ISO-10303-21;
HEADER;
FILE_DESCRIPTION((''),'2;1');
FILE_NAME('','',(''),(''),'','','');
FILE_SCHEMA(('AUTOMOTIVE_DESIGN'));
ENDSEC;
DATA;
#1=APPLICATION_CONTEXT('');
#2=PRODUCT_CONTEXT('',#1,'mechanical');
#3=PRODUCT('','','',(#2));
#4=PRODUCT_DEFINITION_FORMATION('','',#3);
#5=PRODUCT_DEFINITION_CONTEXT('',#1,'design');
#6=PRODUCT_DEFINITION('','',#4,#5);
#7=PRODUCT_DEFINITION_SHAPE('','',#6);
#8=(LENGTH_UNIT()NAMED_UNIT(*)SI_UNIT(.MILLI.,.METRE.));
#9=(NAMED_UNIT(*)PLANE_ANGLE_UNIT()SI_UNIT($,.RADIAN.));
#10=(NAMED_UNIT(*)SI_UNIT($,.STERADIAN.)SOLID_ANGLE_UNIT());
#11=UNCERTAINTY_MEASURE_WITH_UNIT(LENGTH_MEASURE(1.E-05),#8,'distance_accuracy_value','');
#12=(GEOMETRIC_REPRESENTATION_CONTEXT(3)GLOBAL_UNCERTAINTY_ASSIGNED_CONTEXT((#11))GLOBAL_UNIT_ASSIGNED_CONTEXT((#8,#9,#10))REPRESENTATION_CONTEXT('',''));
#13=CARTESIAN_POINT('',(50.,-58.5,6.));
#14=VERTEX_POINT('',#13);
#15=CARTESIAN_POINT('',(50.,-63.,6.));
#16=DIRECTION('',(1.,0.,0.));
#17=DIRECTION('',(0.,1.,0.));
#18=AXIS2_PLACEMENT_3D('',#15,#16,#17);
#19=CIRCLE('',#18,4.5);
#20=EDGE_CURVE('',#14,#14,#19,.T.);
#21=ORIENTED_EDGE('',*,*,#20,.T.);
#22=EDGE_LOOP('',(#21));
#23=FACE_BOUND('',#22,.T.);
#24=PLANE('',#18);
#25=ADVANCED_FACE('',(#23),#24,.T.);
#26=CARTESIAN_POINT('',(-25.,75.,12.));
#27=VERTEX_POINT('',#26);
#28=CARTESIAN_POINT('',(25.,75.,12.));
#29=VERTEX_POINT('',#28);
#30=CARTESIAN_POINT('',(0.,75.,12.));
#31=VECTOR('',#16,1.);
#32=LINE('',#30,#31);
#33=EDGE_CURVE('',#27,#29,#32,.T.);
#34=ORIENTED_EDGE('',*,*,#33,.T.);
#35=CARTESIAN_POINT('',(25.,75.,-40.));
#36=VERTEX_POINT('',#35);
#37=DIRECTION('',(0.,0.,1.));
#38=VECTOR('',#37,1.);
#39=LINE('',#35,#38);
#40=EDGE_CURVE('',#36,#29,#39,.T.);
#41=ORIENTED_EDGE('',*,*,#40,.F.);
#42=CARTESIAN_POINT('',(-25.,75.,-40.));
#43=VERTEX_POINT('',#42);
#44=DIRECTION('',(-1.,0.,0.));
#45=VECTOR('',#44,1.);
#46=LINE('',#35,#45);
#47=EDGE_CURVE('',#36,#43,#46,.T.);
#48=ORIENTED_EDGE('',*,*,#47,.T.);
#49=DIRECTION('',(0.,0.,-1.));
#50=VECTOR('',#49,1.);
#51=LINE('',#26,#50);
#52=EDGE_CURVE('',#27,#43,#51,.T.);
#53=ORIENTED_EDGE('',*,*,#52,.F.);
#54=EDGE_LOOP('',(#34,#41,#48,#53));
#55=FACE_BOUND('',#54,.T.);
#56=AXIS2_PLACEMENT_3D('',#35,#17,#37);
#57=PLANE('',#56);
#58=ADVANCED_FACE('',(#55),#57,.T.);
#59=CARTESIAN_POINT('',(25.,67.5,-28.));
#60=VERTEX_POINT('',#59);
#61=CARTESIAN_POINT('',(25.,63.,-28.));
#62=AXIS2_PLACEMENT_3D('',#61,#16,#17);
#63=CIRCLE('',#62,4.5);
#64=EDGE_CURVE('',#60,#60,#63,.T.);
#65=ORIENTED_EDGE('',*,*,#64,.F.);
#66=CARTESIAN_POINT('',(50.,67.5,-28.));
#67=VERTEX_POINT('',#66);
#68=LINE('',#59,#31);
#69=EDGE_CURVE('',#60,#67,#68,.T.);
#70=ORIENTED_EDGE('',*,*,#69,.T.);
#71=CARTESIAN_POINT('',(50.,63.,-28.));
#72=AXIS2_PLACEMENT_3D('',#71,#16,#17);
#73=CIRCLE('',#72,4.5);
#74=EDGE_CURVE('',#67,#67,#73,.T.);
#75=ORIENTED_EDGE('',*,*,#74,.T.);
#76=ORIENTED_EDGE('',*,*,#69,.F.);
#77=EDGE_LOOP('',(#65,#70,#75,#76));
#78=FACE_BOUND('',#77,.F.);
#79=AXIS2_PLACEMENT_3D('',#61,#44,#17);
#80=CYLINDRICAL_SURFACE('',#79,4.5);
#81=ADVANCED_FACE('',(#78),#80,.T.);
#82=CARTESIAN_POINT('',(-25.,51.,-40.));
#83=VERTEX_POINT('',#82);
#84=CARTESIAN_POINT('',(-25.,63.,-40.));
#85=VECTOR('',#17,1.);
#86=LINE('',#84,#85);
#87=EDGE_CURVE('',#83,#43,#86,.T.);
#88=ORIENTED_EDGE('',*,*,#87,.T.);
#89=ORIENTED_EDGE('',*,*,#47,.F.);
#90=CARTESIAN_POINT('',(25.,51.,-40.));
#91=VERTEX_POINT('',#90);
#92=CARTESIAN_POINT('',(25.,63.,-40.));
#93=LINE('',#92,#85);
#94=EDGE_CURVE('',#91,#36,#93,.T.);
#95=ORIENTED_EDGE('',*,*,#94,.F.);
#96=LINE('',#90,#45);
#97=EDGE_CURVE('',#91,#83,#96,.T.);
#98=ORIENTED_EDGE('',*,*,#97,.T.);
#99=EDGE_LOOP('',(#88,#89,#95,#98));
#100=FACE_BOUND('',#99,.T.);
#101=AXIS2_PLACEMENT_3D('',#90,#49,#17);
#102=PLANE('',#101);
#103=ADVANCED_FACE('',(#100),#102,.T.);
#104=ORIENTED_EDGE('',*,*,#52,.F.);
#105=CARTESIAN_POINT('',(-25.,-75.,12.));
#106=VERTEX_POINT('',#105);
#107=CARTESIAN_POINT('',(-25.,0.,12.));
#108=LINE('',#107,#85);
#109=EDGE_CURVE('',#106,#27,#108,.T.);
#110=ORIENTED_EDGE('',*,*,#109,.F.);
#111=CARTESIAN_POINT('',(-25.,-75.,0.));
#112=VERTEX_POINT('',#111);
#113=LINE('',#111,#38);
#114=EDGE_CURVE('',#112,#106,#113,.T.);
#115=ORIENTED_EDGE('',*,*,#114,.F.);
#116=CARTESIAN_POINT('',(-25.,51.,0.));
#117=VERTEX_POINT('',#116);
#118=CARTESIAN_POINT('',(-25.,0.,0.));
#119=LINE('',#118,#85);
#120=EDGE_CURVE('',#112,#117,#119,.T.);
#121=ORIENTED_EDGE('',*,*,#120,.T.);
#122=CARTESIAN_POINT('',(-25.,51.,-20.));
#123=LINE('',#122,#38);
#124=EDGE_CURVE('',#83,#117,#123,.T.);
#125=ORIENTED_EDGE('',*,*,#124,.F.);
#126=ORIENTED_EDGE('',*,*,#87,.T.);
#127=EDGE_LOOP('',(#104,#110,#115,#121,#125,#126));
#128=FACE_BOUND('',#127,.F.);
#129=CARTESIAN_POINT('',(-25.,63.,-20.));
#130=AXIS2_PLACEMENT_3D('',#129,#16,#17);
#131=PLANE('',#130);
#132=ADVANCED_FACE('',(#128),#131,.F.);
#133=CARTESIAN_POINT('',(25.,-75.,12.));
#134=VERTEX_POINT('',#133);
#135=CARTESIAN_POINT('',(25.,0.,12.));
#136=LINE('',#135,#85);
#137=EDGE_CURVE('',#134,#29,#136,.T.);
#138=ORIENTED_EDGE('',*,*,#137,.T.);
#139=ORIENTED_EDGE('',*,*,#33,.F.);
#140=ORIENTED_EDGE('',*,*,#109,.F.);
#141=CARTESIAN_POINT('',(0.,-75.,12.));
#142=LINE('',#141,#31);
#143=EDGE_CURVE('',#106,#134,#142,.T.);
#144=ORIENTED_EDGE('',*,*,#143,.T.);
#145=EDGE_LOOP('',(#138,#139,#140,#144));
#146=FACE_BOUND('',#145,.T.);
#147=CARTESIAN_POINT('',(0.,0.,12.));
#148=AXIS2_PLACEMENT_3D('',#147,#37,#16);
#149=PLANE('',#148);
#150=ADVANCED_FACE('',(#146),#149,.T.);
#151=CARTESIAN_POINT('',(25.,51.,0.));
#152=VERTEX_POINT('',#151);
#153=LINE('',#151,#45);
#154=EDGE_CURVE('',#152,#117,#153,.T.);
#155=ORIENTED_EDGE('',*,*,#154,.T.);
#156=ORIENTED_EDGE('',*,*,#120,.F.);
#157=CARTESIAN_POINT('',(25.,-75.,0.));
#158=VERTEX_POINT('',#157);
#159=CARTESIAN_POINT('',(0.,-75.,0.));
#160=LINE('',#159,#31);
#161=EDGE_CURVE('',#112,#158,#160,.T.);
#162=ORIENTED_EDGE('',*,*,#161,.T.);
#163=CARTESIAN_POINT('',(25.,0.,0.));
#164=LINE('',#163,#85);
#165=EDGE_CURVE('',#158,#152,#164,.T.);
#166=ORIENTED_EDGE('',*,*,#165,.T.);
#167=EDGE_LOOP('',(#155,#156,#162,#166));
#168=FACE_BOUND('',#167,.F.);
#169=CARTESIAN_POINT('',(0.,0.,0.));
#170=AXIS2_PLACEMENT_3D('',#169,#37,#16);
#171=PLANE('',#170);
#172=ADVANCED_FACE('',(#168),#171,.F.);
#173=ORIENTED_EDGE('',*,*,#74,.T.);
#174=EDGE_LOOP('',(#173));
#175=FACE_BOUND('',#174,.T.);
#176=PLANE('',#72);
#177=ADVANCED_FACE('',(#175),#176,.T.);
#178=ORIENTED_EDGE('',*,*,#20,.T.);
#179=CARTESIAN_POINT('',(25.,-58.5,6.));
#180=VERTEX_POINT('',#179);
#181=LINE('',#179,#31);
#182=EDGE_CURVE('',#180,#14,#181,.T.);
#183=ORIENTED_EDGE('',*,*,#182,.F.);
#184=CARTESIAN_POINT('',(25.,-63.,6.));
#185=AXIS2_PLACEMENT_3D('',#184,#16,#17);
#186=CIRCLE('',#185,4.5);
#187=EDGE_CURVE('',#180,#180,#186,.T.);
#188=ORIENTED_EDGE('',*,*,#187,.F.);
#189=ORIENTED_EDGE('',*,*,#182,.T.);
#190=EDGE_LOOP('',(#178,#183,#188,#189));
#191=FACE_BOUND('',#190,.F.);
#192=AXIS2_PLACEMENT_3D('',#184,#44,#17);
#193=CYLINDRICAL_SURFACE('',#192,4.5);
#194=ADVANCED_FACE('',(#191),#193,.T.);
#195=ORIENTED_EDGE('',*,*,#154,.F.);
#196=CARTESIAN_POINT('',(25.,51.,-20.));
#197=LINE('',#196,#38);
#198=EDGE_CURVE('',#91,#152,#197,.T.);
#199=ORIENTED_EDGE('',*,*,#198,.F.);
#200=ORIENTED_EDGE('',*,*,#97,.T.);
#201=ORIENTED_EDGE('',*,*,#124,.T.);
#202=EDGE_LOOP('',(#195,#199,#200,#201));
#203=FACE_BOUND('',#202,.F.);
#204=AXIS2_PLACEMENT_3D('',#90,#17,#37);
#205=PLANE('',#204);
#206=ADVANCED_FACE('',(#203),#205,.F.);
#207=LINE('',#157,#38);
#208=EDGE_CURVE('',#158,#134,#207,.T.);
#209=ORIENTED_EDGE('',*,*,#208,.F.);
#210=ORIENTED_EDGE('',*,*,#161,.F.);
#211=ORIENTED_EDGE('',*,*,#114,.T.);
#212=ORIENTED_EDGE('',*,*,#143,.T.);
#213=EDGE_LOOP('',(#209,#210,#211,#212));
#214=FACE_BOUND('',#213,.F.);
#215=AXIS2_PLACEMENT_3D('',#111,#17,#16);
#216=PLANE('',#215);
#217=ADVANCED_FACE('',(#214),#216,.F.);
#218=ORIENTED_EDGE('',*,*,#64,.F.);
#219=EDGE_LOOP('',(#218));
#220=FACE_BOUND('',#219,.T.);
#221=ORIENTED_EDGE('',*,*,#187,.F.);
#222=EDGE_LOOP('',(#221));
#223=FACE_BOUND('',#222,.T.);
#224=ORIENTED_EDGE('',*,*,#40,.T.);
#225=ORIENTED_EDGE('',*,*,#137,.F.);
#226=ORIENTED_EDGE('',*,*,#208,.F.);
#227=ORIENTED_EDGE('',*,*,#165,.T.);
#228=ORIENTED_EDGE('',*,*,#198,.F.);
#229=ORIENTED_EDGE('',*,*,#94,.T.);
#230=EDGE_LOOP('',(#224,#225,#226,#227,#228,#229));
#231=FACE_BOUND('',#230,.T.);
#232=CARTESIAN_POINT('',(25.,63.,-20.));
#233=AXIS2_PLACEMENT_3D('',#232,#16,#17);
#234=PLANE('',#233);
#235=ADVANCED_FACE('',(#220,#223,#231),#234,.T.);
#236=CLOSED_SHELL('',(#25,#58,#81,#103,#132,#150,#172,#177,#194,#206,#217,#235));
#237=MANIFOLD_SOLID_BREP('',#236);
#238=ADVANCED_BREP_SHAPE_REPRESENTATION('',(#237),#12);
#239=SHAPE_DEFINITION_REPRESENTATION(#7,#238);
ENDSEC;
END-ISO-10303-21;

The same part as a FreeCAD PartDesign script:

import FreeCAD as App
import Part
import Sketcher

V = App.Vector

doc = App.newDocument("Part")
body = doc.addObject("PartDesign::Body", "Body")

# Sketch on XY plane
sketch1 = body.newObject("Sketcher::SketchObject", "Sketch")
sketch1.AttachmentSupport = (doc.getObject("XY_Plane"), [""])
sketch1.MapMode = "FlatFace"
sketch1.addGeometry([
    Part.LineSegment(V(-25, 75, 0), V(-25, -75, 0)),
    Part.LineSegment(V(-25, -75, 0), V(25, -75, 0)),
    Part.LineSegment(V(25, -75, 0), V(25, 75, 0)),
    Part.LineSegment(V(25, 75, 0), V(-25, 75, 0)),
], False)
sketch1.addConstraint([
    Sketcher.Constraint("Coincident", 0, 2, 1, 1),
    Sketcher.Constraint("Coincident", 1, 2, 2, 1),
    Sketcher.Constraint("Coincident", 2, 2, 3, 1),
    Sketcher.Constraint("Coincident", 3, 2, 0, 1),
    Sketcher.Constraint("Vertical", 0),
    Sketcher.Constraint("Horizontal", 1),
    Sketcher.Constraint("Vertical", 2),
    Sketcher.Constraint("Horizontal", 3),
    Sketcher.Constraint("Symmetric", 0, 2, 2, 2, -1, 1),
    Sketcher.Constraint("DistanceX", 1, 1, 1, 2, 50.0),
    Sketcher.Constraint("DistanceY", 0, 2, 0, 1, 150.0),
])
pad1 = body.newObject("PartDesign::Pad", "Pad")
pad1.Profile = sketch1
pad1.Length = 12

# Sketch on YZ plane
sketch2 = body.newObject("Sketcher::SketchObject", "Sketch001")
sketch2.AttachmentSupport = (doc.getObject("YZ_Plane"), [""])
sketch2.MapMode = "FlatFace"
sketch2.AttachmentOffset = App.Placement(V(0, 0, 25), App.Rotation())
sketch2.addGeometry([
    Part.LineSegment(V(51, 0, 0), V(51, -40, 0)),
    Part.LineSegment(V(51, -40, 0), V(75, -40, 0)),
    Part.LineSegment(V(75, -40, 0), V(75, 0, 0)),
    Part.LineSegment(V(75, 0, 0), V(51, 0, 0)),
], False)
sketch2.addConstraint([
    Sketcher.Constraint("Coincident", 0, 2, 1, 1),
    Sketcher.Constraint("Coincident", 1, 2, 2, 1),
    Sketcher.Constraint("Coincident", 2, 2, 3, 1),
    Sketcher.Constraint("Coincident", 3, 2, 0, 1),
    Sketcher.Constraint("Vertical", 0),
    Sketcher.Constraint("Horizontal", 1),
    Sketcher.Constraint("Vertical", 2),
    Sketcher.Constraint("Horizontal", 3),
    Sketcher.Constraint("PointOnObject", 2, 2, -1),
    Sketcher.Constraint("DistanceX", 1, 1, 1, 2, 24.0),
    Sketcher.Constraint("DistanceY", 0, 2, 0, 1, 40.0),
    Sketcher.Constraint("DistanceX", -1, 1, 0, 2, 51.0),
])
pad2 = body.newObject("PartDesign::Pad", "Pad001")
pad2.Profile = sketch2
pad2.Length = 50
pad2.Reversed = True

# Sketch on YZ plane
sketch3 = body.newObject("Sketcher::SketchObject", "Sketch002")
sketch3.AttachmentSupport = (doc.getObject("YZ_Plane"), [""])
sketch3.MapMode = "FlatFace"
sketch3.AttachmentOffset = App.Placement(V(0, 0, 25), App.Rotation())
sketch3.addGeometry([
    Part.Circle(V(-63, 6, 0), V(0, 0, 1), 4.5),
    Part.Circle(V(63, -28, 0), V(0, 0, 1), 4.5),
], False)
sketch3.addConstraint([
    Sketcher.Constraint("Equal", 0, 1),
    Sketcher.Constraint("Diameter", 0, 9.0),
    Sketcher.Constraint("DistanceX", 0, 3, -1, 1, 63.0),
    Sketcher.Constraint("DistanceY", -1, 1, 0, 3, 6.0),
    Sketcher.Constraint("DistanceX", -1, 1, 1, 3, 63.0),
    Sketcher.Constraint("DistanceY", 1, 3, -1, 1, 28.0),
])
pad3 = body.newObject("PartDesign::Pad", "Pad002")
pad3.Profile = sketch3
pad3.Length = 25

doc.recompute()
